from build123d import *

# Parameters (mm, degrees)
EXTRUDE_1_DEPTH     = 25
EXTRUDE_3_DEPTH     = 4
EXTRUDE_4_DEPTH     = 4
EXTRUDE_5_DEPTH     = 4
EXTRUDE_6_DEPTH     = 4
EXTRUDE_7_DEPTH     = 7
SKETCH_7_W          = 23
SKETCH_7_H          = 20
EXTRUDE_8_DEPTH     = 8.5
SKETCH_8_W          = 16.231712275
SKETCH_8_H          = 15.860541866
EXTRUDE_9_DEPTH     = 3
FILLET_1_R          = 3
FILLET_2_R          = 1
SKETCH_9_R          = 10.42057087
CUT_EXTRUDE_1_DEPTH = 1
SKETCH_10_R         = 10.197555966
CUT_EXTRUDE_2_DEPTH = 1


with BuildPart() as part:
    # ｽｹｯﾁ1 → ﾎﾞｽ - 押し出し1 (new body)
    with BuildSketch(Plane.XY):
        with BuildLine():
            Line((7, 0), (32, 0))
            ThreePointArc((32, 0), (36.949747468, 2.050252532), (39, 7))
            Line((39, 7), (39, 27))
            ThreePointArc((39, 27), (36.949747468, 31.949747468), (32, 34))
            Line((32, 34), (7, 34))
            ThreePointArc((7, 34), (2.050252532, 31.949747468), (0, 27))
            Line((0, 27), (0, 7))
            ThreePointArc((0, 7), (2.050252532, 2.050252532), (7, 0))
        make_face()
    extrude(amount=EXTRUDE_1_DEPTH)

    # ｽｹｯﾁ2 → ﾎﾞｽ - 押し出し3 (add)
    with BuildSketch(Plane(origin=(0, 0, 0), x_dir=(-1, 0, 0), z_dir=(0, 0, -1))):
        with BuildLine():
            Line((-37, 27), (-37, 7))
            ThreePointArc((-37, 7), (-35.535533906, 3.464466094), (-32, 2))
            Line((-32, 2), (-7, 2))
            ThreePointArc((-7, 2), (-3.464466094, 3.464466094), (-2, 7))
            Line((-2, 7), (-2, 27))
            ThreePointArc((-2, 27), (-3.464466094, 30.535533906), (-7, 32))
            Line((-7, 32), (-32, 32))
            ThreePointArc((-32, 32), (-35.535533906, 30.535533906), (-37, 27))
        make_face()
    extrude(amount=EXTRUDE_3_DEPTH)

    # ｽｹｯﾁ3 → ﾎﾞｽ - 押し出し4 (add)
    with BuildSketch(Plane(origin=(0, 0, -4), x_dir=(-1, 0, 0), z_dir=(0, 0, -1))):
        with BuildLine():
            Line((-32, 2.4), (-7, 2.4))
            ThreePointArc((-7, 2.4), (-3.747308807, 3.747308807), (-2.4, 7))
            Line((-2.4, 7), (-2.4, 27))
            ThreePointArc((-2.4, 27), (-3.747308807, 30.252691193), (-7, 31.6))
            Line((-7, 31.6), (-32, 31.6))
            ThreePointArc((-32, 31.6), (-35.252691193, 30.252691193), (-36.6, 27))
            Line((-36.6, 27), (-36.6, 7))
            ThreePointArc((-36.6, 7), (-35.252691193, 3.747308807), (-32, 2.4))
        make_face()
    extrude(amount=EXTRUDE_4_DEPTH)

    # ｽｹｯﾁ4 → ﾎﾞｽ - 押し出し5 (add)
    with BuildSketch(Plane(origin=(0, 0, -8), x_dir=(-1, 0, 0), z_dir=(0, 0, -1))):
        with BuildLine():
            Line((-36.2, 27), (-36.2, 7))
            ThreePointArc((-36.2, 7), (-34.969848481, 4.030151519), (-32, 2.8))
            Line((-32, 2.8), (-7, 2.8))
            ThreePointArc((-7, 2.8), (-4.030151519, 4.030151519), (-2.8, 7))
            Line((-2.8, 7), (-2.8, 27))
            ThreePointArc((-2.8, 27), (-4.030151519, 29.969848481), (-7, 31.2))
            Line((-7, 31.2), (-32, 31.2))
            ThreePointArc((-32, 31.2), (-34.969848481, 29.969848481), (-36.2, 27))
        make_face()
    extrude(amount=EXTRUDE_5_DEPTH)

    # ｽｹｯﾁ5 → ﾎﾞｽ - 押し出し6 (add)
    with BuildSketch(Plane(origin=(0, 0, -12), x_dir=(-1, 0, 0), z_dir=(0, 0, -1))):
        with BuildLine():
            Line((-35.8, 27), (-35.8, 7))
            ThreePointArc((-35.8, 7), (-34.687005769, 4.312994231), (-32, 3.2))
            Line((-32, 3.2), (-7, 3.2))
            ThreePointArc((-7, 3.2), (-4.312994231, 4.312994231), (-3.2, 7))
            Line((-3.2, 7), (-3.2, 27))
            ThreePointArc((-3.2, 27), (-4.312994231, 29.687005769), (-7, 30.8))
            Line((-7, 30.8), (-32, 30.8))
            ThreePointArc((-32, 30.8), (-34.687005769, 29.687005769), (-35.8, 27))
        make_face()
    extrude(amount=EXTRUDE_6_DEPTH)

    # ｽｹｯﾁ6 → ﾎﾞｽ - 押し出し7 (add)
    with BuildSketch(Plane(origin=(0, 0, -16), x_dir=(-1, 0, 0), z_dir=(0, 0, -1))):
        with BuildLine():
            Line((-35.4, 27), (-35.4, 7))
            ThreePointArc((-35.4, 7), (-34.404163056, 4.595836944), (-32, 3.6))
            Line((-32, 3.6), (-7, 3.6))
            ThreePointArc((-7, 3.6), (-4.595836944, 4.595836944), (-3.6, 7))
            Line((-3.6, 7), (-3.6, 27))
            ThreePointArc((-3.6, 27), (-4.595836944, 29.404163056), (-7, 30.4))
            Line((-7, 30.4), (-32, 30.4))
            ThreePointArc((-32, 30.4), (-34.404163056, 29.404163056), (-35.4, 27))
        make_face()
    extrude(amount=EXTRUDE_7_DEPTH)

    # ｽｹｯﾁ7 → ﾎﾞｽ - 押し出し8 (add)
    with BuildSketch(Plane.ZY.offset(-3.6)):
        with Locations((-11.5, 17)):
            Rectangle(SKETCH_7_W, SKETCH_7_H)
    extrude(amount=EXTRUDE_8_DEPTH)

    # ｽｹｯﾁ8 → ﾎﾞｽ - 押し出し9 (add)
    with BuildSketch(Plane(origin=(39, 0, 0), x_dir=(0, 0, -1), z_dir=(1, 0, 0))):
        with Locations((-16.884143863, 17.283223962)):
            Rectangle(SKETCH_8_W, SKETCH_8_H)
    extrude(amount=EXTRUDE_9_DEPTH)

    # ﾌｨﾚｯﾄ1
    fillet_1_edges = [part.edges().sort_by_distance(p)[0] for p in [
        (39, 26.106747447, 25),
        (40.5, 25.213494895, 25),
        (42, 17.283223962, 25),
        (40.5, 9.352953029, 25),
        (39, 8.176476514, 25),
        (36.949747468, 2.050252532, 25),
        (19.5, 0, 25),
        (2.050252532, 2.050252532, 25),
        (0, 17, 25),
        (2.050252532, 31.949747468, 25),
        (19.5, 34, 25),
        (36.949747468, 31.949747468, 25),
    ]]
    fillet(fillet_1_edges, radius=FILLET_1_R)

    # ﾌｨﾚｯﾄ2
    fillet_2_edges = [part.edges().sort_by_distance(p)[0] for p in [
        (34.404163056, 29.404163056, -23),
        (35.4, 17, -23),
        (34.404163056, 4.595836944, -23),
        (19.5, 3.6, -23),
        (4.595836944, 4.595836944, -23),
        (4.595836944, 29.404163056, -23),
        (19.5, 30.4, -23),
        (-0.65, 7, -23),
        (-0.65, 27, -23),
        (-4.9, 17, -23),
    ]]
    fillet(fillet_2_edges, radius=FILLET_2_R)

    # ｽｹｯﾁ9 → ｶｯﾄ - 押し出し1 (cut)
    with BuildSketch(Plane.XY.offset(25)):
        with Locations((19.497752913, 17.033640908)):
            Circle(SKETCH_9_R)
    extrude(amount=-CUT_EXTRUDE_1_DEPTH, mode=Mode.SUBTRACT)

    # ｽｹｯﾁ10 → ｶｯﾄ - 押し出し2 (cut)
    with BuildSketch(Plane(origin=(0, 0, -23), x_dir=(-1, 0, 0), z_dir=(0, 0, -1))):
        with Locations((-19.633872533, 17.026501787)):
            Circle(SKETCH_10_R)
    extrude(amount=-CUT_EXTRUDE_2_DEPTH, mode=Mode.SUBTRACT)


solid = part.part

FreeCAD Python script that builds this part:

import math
import FreeCAD as App
import Part
import Sketcher

V = App.Vector


def edges_at(feature, points):
    """Names of the edges that pass closest to the given points."""
    edges = feature.Shape.Edges
    near = lambda p: min(range(len(edges)), key=lambda i: edges[i].distToShape(Part.Vertex(*p))[0])
    return sorted({f"Edge{near(p) + 1}" for p in points})


def add_polygon(sketch, points):
    """Adds a closed chain of lines whose ends are joined by coincident constraints."""
    first, n = sketch.GeometryCount, len(points)
    for a, b in zip(points, points[1:] + points[:1]):
        sketch.addGeometry(Part.LineSegment(App.Vector(*a, 0), App.Vector(*b, 0)), False)
    for i in range(n):
        sketch.addConstraint(Sketcher.Constraint("Coincident", first + i, 2, first + (i + 1) % n, 1))

doc = App.newDocument("Part")
body = doc.addObject("PartDesign::Body", "Body")

sketch1 = body.newObject("Sketcher::SketchObject", "Sketch")
sketch1.AttachmentSupport = (doc.getObject("XY_Plane"), [""])
sketch1.MapMode = "FlatFace"
sketch1.addGeometry(Part.LineSegment(V(7, 0, 0), V(32, 0, 0)), False)
sketch1.addGeometry(Part.ArcOfCircle(Part.Circle(V(32, 7, 0), V(0, 0, 1), 7), math.radians(-90), math.radians(0)), False)
sketch1.addGeometry(Part.LineSegment(V(39, 7, 0), V(39, 27, 0)), False)
sketch1.addGeometry(Part.ArcOfCircle(Part.Circle(V(32, 27, 0), V(0, 0, 1), 7), math.radians(0), math.radians(90)), False)
sketch1.addGeometry(Part.LineSegment(V(32, 34, 0), V(7, 34, 0)), False)
sketch1.addGeometry(Part.ArcOfCircle(Part.Circle(V(7, 27, 0), V(0, 0, 1), 7), math.radians(90), math.radians(180)), False)
sketch1.addGeometry(Part.LineSegment(V(0, 27, 0), V(0, 7, 0)), False)
sketch1.addGeometry(Part.ArcOfCircle(Part.Circle(V(7, 7, 0), V(0, 0, 1), 7), math.radians(-180), math.radians(-90)), False)
sketch1.addConstraint(Sketcher.Constraint("Tangent", 0, 2, 1, 1))
sketch1.addConstraint(Sketcher.Constraint("Tangent", 1, 2, 2, 1))
sketch1.addConstraint(Sketcher.Constraint("Tangent", 2, 2, 3, 1))
sketch1.addConstraint(Sketcher.Constraint("Tangent", 3, 2, 4, 1))
sketch1.addConstraint(Sketcher.Constraint("Tangent", 4, 2, 5, 1))
sketch1.addConstraint(Sketcher.Constraint("Tangent", 5, 2, 6, 1))
sketch1.addConstraint(Sketcher.Constraint("Tangent", 6, 2, 7, 1))
sketch1.addConstraint(Sketcher.Constraint("Tangent", 7, 2, 0, 1))
sketch1.addConstraint(Sketcher.Constraint("Horizontal", 0))
sketch1.addConstraint(Sketcher.Constraint("Vertical", 2))
sketch1.addConstraint(Sketcher.Constraint("Horizontal", 4))
sketch1.addConstraint(Sketcher.Constraint("Vertical", 6))
sketch1.addConstraint(Sketcher.Constraint("Equal", 1, 3))
sketch1.addConstraint(Sketcher.Constraint("Equal", 3, 5))
sketch1.addConstraint(Sketcher.Constraint("Equal", 5, 7))
sketch1.addConstraint(Sketcher.Constraint("PointOnObject", 0, 2, -1))
sketch1.addConstraint(Sketcher.Constraint("PointOnObject", 5, 2, -2))
sketch1.addConstraint(Sketcher.Constraint("Radius", 1, 7.0))
sketch1.addConstraint(Sketcher.Constraint("DistanceX", 0, 1, 0, 2, 25.0))
sketch1.addConstraint(Sketcher.Constraint("DistanceY", 2, 1, 2, 2, 20.0))
pad1 = body.newObject("PartDesign::Pad", "Pad")
pad1.Profile = sketch1
pad1.Length = 25

sketch2 = body.newObject("Sketcher::SketchObject", "Sketch001")
sketch2.AttachmentSupport = (doc.getObject("XY_Plane"), [""])
sketch2.MapMode = "FlatFace"
sketch2.addGeometry(Part.LineSegment(V(37, 27, 0), V(37, 7, 0)), False)
sketch2.addGeometry(Part.ArcOfCircle(Part.Circle(V(32, 7, 0), V(0, 0, 1), 5), math.radians(-90), math.radians(0)), False)
sketch2.addGeometry(Part.LineSegment(V(32, 2, 0), V(7, 2, 0)), False)
sketch2.addGeometry(Part.ArcOfCircle(Part.Circle(V(7, 7, 0), V(0, 0, 1), 5), math.radians(180), math.radians(270)), False)
sketch2.addGeometry(Part.LineSegment(V(2, 7, 0), V(2, 27, 0)), False)
sketch2.addGeometry(Part.ArcOfCircle(Part.Circle(V(7, 27, 0), V(0, 0, 1), 5), math.radians(90), math.radians(180)), False)
sketch2.addGeometry(Part.LineSegment(V(7, 32, 0), V(32, 32, 0)), False)
sketch2.addGeometry(Part.ArcOfCircle(Part.Circle(V(32, 27, 0), V(0, 0, 1), 5), math.radians(0), math.radians(90)), False)
sketch2.addConstraint(Sketcher.Constraint("Tangent", 0, 2, 1, 2))
sketch2.addConstraint(Sketcher.Constraint("Tangent", 1, 1, 2, 1))
sketch2.addConstraint(Sketcher.Constraint("Tangent", 2, 2, 3, 2))
sketch2.addConstraint(Sketcher.Constraint("Tangent", 3, 1, 4, 1))
sketch2.addConstraint(Sketcher.Constraint("Tangent", 4, 2, 5, 2))
sketch2.addConstraint(Sketcher.Constraint("Tangent", 5, 1, 6, 1))
sketch2.addConstraint(Sketcher.Constraint("Tangent", 6, 2, 7, 2))
sketch2.addConstraint(Sketcher.Constraint("Tangent", 7, 1, 0, 1))
sketch2.addConstraint(Sketcher.Constraint("Vertical", 0))
sketch2.addConstraint(Sketcher.Constraint("Horizontal", 2))
sketch2.addConstraint(Sketcher.Constraint("Vertical", 4))
sketch2.addConstraint(Sketcher.Constraint("Horizontal", 6))
sketch2.addConstraint(Sketcher.Constraint("Equal", 1, 3))
sketch2.addConstraint(Sketcher.Constraint("Equal", 3, 5))
sketch2.addConstraint(Sketcher.Constraint("Equal", 5, 7))
sketch2.addConstraint(Sketcher.Constraint("Radius", 1, 5.0))
sketch2.addConstraint(Sketcher.Constraint("DistanceX", 2, 2, 2, 1, 25.0))
sketch2.addConstraint(Sketcher.Constraint("DistanceY", 0, 2, 0, 1, 20.0))
sketch2.addConstraint(Sketcher.Constraint("DistanceX", -1, 1, 1, 3, 32.0))
sketch2.addConstraint(Sketcher.Constraint("DistanceY", -1, 1, 1, 3, 7.0))
pad2 = body.newObject("PartDesign::Pad", "Pad001")
pad2.Profile = sketch2
pad2.Length = 4
pad2.Reversed = True

sketch3 = body.newObject("Sketcher::SketchObject", "Sketch002")
sketch3.AttachmentSupport = (doc.getObject("XY_Plane"), [""])
sketch3.MapMode = "FlatFace"
sketch3.AttachmentOffset = App.Placement(V(0, 0, -4), App.Rotation())
sketch3.addGeometry(Part.LineSegment(V(32, 2.4, 0), V(7, 2.4, 0)), False)
sketch3.addGeometry(Part.ArcOfCircle(Part.Circle(V(7, 7, 0), V(0, 0, 1), 4.6), math.radians(-180), math.radians(-90)), False)
sketch3.addGeometry(Part.LineSegment(V(2.4, 7, 0), V(2.4, 27, 0)), False)
sketch3.addGeometry(Part.ArcOfCircle(Part.Circle(V(7, 27, 0), V(0, 0, 1), 4.6), math.radians(90), math.radians(180)), False)
sketch3.addGeometry(Part.LineSegment(V(7, 31.6, 0), V(32, 31.6, 0)), False)
sketch3.addGeometry(Part.ArcOfCircle(Part.Circle(V(32, 27, 0), V(0, 0, 1), 4.6), math.radians(0), math.radians(90)), False)
sketch3.addGeometry(Part.LineSegment(V(36.6, 27, 0), V(36.6, 7, 0)), False)
sketch3.addGeometry(Part.ArcOfCircle(Part.Circle(V(32, 7, 0), V(0, 0, 1), 4.6), math.radians(-90), math.radians(0)), False)
sketch3.addConstraint(Sketcher.Constraint("Tangent", 0, 2, 1, 2))
sketch3.addConstraint(Sketcher.Constraint("Tangent", 1, 1, 2, 1))
sketch3.addConstraint(Sketcher.Constraint("Tangent", 2, 2, 3, 2))
sketch3.addConstraint(Sketcher.Constraint("Tangent", 3, 1, 4, 1))
sketch3.addConstraint(Sketcher.Constraint("Tangent", 4, 2, 5, 2))
sketch3.addConstraint(Sketcher.Constraint("Tangent", 5, 1, 6, 1))
sketch3.addConstraint(Sketcher.Constraint("Tangent", 6, 2, 7, 2))
sketch3.addConstraint(Sketcher.Constraint("Tangent", 7, 1, 0, 1))
sketch3.addConstraint(Sketcher.Constraint("Horizontal", 0))
sketch3.addConstraint(Sketcher.Constraint("Vertical", 2))
sketch3.addConstraint(Sketcher.Constraint("Horizontal", 4))
sketch3.addConstraint(Sketcher.Constraint("Vertical", 6))
sketch3.addConstraint(Sketcher.Constraint("Equal", 1, 3))
sketch3.addConstraint(Sketcher.Constraint("Equal", 3, 5))
sketch3.addConstraint(Sketcher.Constraint("Equal", 5, 7))
sketch3.addConstraint(Sketcher.Constraint("Radius", 1, 4.6))
sketch3.addConstraint(Sketcher.Constraint("DistanceX", 0, 2, 0, 1, 25.0))
sketch3.addConstraint(Sketcher.Constraint("DistanceY", 2, 1, 2, 2, 20.0))
sketch3.addConstraint(Sketcher.Constraint("DistanceX", -1, 1, 1, 3, 7.0))
sketch3.addConstraint(Sketcher.Constraint("DistanceY", -1, 1, 1, 3, 7.0))
pad3 = body.newObject("PartDesign::Pad", "Pad002")
pad3.Profile = sketch3
pad3.Length = 4
pad3.Reversed = True

sketch4 = body.newObject("Sketcher::SketchObject", "Sketch003")
sketch4.AttachmentSupport = (doc.getObject("XY_Plane"), [""])
sketch4.MapMode = "FlatFace"
sketch4.AttachmentOffset = App.Placement(V(0, 0, -8), App.Rotation())
sketch4.addGeometry(Part.LineSegment(V(36.2, 27, 0), V(36.2, 7, 0)), False)
sketch4.addGeometry(Part.ArcOfCircle(Part.Circle(V(32, 7, 0), V(0, 0, 1), 4.2), math.radians(-90), math.radians(0)), False)
sketch4.addGeometry(Part.LineSegment(V(32, 2.8, 0), V(7, 2.8, 0)), False)
sketch4.addGeometry(Part.ArcOfCircle(Part.Circle(V(7, 7, 0), V(0, 0, 1), 4.2), math.radians(180), math.radians(270)), False)
sketch4.addGeometry(Part.LineSegment(V(2.8, 7, 0), V(2.8, 27, 0)), False)
sketch4.addGeometry(Part.ArcOfCircle(Part.Circle(V(7, 27, 0), V(0, 0, 1), 4.2), math.radians(90), math.radians(180)), False)
sketch4.addGeometry(Part.LineSegment(V(7, 31.2, 0), V(32, 31.2, 0)), False)
sketch4.addGeometry(Part.ArcOfCircle(Part.Circle(V(32, 27, 0), V(0, 0, 1), 4.2), math.radians(0), math.radians(90)), False)
sketch4.addConstraint(Sketcher.Constraint("Tangent", 0, 2, 1, 2))
sketch4.addConstraint(Sketcher.Constraint("Tangent", 1, 1, 2, 1))
sketch4.addConstraint(Sketcher.Constraint("Tangent", 2, 2, 3, 2))
sketch4.addConstraint(Sketcher.Constraint("Tangent", 3, 1, 4, 1))
sketch4.addConstraint(Sketcher.Constraint("Tangent", 4, 2, 5, 2))
sketch4.addConstraint(Sketcher.Constraint("Tangent", 5, 1, 6, 1))
sketch4.addConstraint(Sketcher.Constraint("Tangent", 6, 2, 7, 2))
sketch4.addConstraint(Sketcher.Constraint("Tangent", 7, 1, 0, 1))
sketch4.addConstraint(Sketcher.Constraint("Vertical", 0))
sketch4.addConstraint(Sketcher.Constraint("Horizontal", 2))
sketch4.addConstraint(Sketcher.Constraint("Vertical", 4))
sketch4.addConstraint(Sketcher.Constraint("Horizontal", 6))
sketch4.addConstraint(Sketcher.Constraint("Equal", 1, 3))
sketch4.addConstraint(Sketcher.Constraint("Equal", 3, 5))
sketch4.addConstraint(Sketcher.Constraint("Equal", 5, 7))
sketch4.addConstraint(Sketcher.Constraint("Radius", 1, 4.2))
sketch4.addConstraint(Sketcher.Constraint("DistanceX", 2, 2, 2, 1, 25.0))
sketch4.addConstraint(Sketcher.Constraint("DistanceY", 0, 2, 0, 1, 20.0))
sketch4.addConstraint(Sketcher.Constraint("DistanceX", -1, 1, 1, 3, 32.0))
sketch4.addConstraint(Sketcher.Constraint("DistanceY", -1, 1, 1, 3, 7.0))
pad4 = body.newObject("PartDesign::Pad", "Pad003")
pad4.Profile = sketch4
pad4.Length = 4
pad4.Reversed = True

sketch5 = body.newObject("Sketcher::SketchObject", "Sketch004")
sketch5.AttachmentSupport = (doc.getObject("XY_Plane"), [""])
sketch5.MapMode = "FlatFace"
sketch5.AttachmentOffset = App.Placement(V(0, 0, -12), App.Rotation())
sketch5.addGeometry(Part.LineSegment(V(35.8, 27, 0), V(35.8, 7, 0)), False)
sketch5.addGeometry(Part.ArcOfCircle(Part.Circle(V(32, 7, 0), V(0, 0, 1), 3.8), math.radians(-90), math.radians(0)), False)
sketch5.addGeometry(Part.LineSegment(V(32, 3.2, 0), V(7, 3.2, 0)), False)
sketch5.addGeometry(Part.ArcOfCircle(Part.Circle(V(7, 7, 0), V(0, 0, 1), 3.8), math.radians(180), math.radians(270)), False)
sketch5.addGeometry(Part.LineSegment(V(3.2, 7, 0), V(3.2, 27, 0)), False)
sketch5.addGeometry(Part.ArcOfCircle(Part.Circle(V(7, 27, 0), V(0, 0, 1), 3.8), math.radians(90), math.radians(180)), False)
sketch5.addGeometry(Part.LineSegment(V(7, 30.8, 0), V(32, 30.8, 0)), False)
sketch5.addGeometry(Part.ArcOfCircle(Part.Circle(V(32, 27, 0), V(0, 0, 1), 3.8), math.radians(0), math.radians(90)), False)
sketch5.addConstraint(Sketcher.Constraint("Tangent", 0, 2, 1, 2))
sketch5.addConstraint(Sketcher.Constraint("Tangent", 1, 1, 2, 1))
sketch5.addConstraint(Sketcher.Constraint("Tangent", 2, 2, 3, 2))
sketch5.addConstraint(Sketcher.Constraint("Tangent", 3, 1, 4, 1))
sketch5.addConstraint(Sketcher.Constraint("Tangent", 4, 2, 5, 2))
sketch5.addConstraint(Sketcher.Constraint("Tangent", 5, 1, 6, 1))
sketch5.addConstraint(Sketcher.Constraint("Tangent", 6, 2, 7, 2))
sketch5.addConstraint(Sketcher.Constraint("Tangent", 7, 1, 0, 1))
sketch5.addConstraint(Sketcher.Constraint("Vertical", 0))
sketch5.addConstraint(Sketcher.Constraint("Horizontal", 2))
sketch5.addConstraint(Sketcher.Constraint("Vertical", 4))
sketch5.addConstraint(Sketcher.Constraint("Horizontal", 6))
sketch5.addConstraint(Sketcher.Constraint("Equal", 1, 3))
sketch5.addConstraint(Sketcher.Constraint("Equal", 3, 5))
sketch5.addConstraint(Sketcher.Constraint("Equal", 5, 7))
sketch5.addConstraint(Sketcher.Constraint("Radius", 1, 3.8))
sketch5.addConstraint(Sketcher.Constraint("DistanceX", 2, 2, 2, 1, 25.0))
sketch5.addConstraint(Sketcher.Constraint("DistanceY", 0, 2, 0, 1, 20.0))
sketch5.addConstraint(Sketcher.Constraint("DistanceX", -1, 1, 1, 3, 32.0))
sketch5.addConstraint(Sketcher.Constraint("DistanceY", -1, 1, 1, 3, 7.0))
pad5 = body.newObject("PartDesign::Pad", "Pad004")
pad5.Profile = sketch5
pad5.Length = 4
pad5.Reversed = True

sketch6 = body.newObject("Sketcher::SketchObject", "Sketch005")
sketch6.AttachmentSupport = (doc.getObject("XY_Plane"), [""])
sketch6.MapMode = "FlatFace"
sketch6.AttachmentOffset = App.Placement(V(0, 0, -16), App.Rotation())
sketch6.addGeometry(Part.LineSegment(V(35.4, 27, 0), V(35.4, 7, 0)), False)
sketch6.addGeometry(Part.ArcOfCircle(Part.Circle(V(32, 7, 0), V(0, 0, 1), 3.4), math.radians(-90), math.radians(0)), False)
sketch6.addGeometry(Part.LineSegment(V(32, 3.6, 0), V(7, 3.6, 0)), False)
sketch6.addGeometry(Part.ArcOfCircle(Part.Circle(V(7, 7, 0), V(0, 0, 1), 3.4), math.radians(180), math.radians(270)), False)
sketch6.addGeometry(Part.LineSegment(V(3.6, 7, 0), V(3.6, 27, 0)), False)
sketch6.addGeometry(Part.ArcOfCircle(Part.Circle(V(7, 27, 0), V(0, 0, 1), 3.4), math.radians(90), math.radians(180)), False)
sketch6.addGeometry(Part.LineSegment(V(7, 30.4, 0), V(32, 30.4, 0)), False)
sketch6.addGeometry(Part.ArcOfCircle(Part.Circle(V(32, 27, 0), V(0, 0, 1), 3.4), math.radians(0), math.radians(90)), False)
sketch6.addConstraint(Sketcher.Constraint("Tangent", 0, 2, 1, 2))
sketch6.addConstraint(Sketcher.Constraint("Tangent", 1, 1, 2, 1))
sketch6.addConstraint(Sketcher.Constraint("Tangent", 2, 2, 3, 2))
sketch6.addConstraint(Sketcher.Constraint("Tangent", 3, 1, 4, 1))
sketch6.addConstraint(Sketcher.Constraint("Tangent", 4, 2, 5, 2))
sketch6.addConstraint(Sketcher.Constraint("Tangent", 5, 1, 6, 1))
sketch6.addConstraint(Sketcher.Constraint("Tangent", 6, 2, 7, 2))
sketch6.addConstraint(Sketcher.Constraint("Tangent", 7, 1, 0, 1))
sketch6.addConstraint(Sketcher.Constraint("Vertical", 0))
sketch6.addConstraint(Sketcher.Constraint("Horizontal", 2))
sketch6.addConstraint(Sketcher.Constraint("Vertical", 4))
sketch6.addConstraint(Sketcher.Constraint("Horizontal", 6))
sketch6.addConstraint(Sketcher.Constraint("Equal", 1, 3))
sketch6.addConstraint(Sketcher.Constraint("Equal", 3, 5))
sketch6.addConstraint(Sketcher.Constraint("Equal", 5, 7))
sketch6.addConstraint(Sketcher.Constraint("Radius", 1, 3.4))
sketch6.addConstraint(Sketcher.Constraint("DistanceX", 2, 2, 2, 1, 25.0))
sketch6.addConstraint(Sketcher.Constraint("DistanceY", 0, 2, 0, 1, 20.0))
sketch6.addConstraint(Sketcher.Constraint("DistanceX", -1, 1, 1, 3, 32.0))
sketch6.addConstraint(Sketcher.Constraint("DistanceY", -1, 1, 1, 3, 7.0))
pad6 = body.newObject("PartDesign::Pad", "Pad005")
pad6.Profile = sketch6
pad6.Length = 7
pad6.Reversed = True

sketch7 = body.newObject("Sketcher::SketchObject", "Sketch006")
sketch7.AttachmentSupport = (doc.getObject("YZ_Plane"), [""])
sketch7.MapMode = "FlatFace"
sketch7.AttachmentOffset = App.Placement(V(0, 0, 3.6), App.Rotation())
add_polygon(sketch7, [(27, -23), (7, -23), (7, 0), (27, 0)])
sketch7.addConstraint(Sketcher.Constraint("Horizontal", 0))
sketch7.addConstraint(Sketcher.Constraint("Vertical", 1))
sketch7.addConstraint(Sketcher.Constraint("Horizontal", 2))
sketch7.addConstraint(Sketcher.Constraint("Vertical", 3))
sketch7.addConstraint(Sketcher.Constraint("PointOnObject", 1, 2, -1))
sketch7.addConstraint(Sketcher.Constraint("DistanceX", 0, 2, 0, 1, 20.0))
sketch7.addConstraint(Sketcher.Constraint("DistanceY", 1, 1, 1, 2, 23.0))
sketch7.addConstraint(Sketcher.Constraint("DistanceX", -1, 1, 0, 2, 7.0))
pad7 = body.newObject("PartDesign::Pad", "Pad006")
pad7.Profile = sketch7
pad7.Length = 8.5
pad7.Reversed = True

sketch8 = body.newObject("Sketcher::SketchObject", "Sketch007")
sketch8.AttachmentSupport = (doc.getObject("YZ_Plane"), [""])
sketch8.MapMode = "FlatFace"
sketch8.AttachmentOffset = App.Placement(V(0, 0, 39), App.Rotation())
add_polygon(sketch8, [(25.213495, 25), (9.352953, 25), (9.352953, 8.768288), (25.213495, 8.768288)])
sketch8.addConstraint(Sketcher.Constraint("Horizontal", 0))
sketch8.addConstraint(Sketcher.Constraint("Vertical", 1))
sketch8.addConstraint(Sketcher.Constraint("Horizontal", 2))
sketch8.addConstraint(Sketcher.Constraint("Vertical", 3))
sketch8.addConstraint(Sketcher.Constraint("DistanceY", -1, 1, 0, 2, 25.0))
sketch8.addConstraint(Sketcher.Constraint("DistanceX", 0, 2, 0, 1, 15.860542))
sketch8.addConstraint(Sketcher.Constraint("DistanceY", 1, 2, 1, 1, 16.231712))
sketch8.addConstraint(Sketcher.Constraint("DistanceX", -1, 1, 0, 2, 9.352953))
pad8 = body.newObject("PartDesign::Pad", "Pad007")
pad8.Profile = sketch8
pad8.Length = 3
doc.recompute()

fillet = body.newObject("PartDesign::Fillet", "Fillet")
fillet.Base = (pad8, edges_at(pad8, [
    (39, 26.107, 25),
    (40.5, 25.213, 25),
    (42, 17.283, 25),
    (40.5, 9.353, 25),
    (39, 8.176, 25),
    (36.95, 2.05, 25),
    (19.5, 0, 25),
    (2.05, 2.05, 25),
    (0, 17, 25),
    (2.05, 31.95, 25),
    (19.5, 34, 25),
    (36.95, 31.95, 25),
]))
fillet.Radius = 3
doc.recompute()

fillet2 = body.newObject("PartDesign::Fillet", "Fillet001")
fillet2.Base = (fillet, edges_at(fillet, [
    (34.404, 29.404, -23),
    (35.4, 17, -23),
    (34.404, 4.596, -23),
    (19.5, 3.6, -23),
    (4.596, 4.596, -23),
    (4.596, 29.404, -23),
    (19.5, 30.4, -23),
    (-0.65, 7, -23),
    (-0.65, 27, -23),
    (-4.9, 17, -23),
]))
fillet2.Radius = 1

sketch9 = body.newObject("Sketcher::SketchObject", "Sketch008")
sketch9.AttachmentSupport = (doc.getObject("XY_Plane"), [""])
sketch9.MapMode = "FlatFace"
sketch9.AttachmentOffset = App.Placement(V(0, 0, 25), App.Rotation())
sketch9.addGeometry(Part.Circle(V(19.497753, 17.033641, 0), V(0, 0, 1), 10.420571), False)
sketch9.addConstraint(Sketcher.Constraint("Diameter", 0, 20.841142))
sketch9.addConstraint(Sketcher.Constraint("DistanceY", -1, 1, 0, 3, 17.033641))
sketch9.addConstraint(Sketcher.Constraint("DistanceX", -1, 1, 0, 3, 19.497753))
pocket1 = body.newObject("PartDesign::Pocket", "Pocket")
pocket1.Profile = sketch9
pocket1.Length = 1

sketch10 = body.newObject("Sketcher::SketchObject", "Sketch009")
sketch10.AttachmentSupport = (doc.getObject("XY_Plane"), [""])
sketch10.MapMode = "FlatFace"
sketch10.AttachmentOffset = App.Placement(V(0, 0, -23), App.Rotation())
sketch10.addGeometry(Part.Circle(V(19.633873, 17.026502, 0), V(0, 0, 1), 10.197556), False)
sketch10.addConstraint(Sketcher.Constraint("Diameter", 0, 20.395112))
sketch10.addConstraint(Sketcher.Constraint("DistanceY", -1, 1, 0, 3, 17.026502))
sketch10.addConstraint(Sketcher.Constraint("DistanceX", -1, 1, 0, 3, 19.633873))
pocket2 = body.newObject("PartDesign::Pocket", "Pocket001")
pocket2.Profile = sketch10
pocket2.Length = 1
pocket2.Reversed = True

doc.recompute()
